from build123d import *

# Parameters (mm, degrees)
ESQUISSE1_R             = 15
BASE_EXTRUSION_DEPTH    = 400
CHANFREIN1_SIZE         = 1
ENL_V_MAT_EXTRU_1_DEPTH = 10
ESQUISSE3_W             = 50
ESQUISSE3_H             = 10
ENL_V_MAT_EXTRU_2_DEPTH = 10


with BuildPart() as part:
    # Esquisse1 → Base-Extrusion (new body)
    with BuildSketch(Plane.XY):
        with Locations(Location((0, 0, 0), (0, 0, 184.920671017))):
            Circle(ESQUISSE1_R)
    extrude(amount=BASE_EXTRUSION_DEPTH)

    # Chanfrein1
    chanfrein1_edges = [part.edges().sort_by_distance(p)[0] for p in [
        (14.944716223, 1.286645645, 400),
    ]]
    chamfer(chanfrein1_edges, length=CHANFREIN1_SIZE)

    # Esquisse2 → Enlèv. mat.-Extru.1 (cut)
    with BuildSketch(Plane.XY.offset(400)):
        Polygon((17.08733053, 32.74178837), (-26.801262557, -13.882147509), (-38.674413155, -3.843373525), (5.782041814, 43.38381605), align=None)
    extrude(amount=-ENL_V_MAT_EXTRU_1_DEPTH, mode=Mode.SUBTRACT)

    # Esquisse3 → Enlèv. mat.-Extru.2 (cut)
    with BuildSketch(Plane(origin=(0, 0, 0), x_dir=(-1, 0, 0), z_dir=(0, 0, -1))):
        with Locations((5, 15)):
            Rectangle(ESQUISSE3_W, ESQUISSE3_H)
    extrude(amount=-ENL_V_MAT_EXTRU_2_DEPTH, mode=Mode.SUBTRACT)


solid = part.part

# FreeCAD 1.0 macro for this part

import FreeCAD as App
import Part
import Sketcher

V = App.Vector
Q = App.Units.Quantity


def edges_at(feature, points):
    """Names of the edges that pass closest to the given points."""
    edges = feature.Shape.Edges
    near = lambda p: min(range(len(edges)), key=lambda i: edges[i].distToShape(Part.Vertex(*p))[0])
    return sorted({f"Edge{near(p) + 1}" for p in points})

doc = App.newDocument("Part")
body = doc.addObject("PartDesign::Body", "Body")

sketch1 = doc.addObject("Sketcher::SketchObject", "Sketch")
body.addObject(sketch1)
sketch1.AttachmentSupport = (doc.XY_Plane, [""])
sketch1.MapMode = "FlatFace"
sketch1.addGeometry(Part.Circle(V(0, 0, 0), V(0, 0, 1), 15), False)
sketch1.addConstraint([
    Sketcher.Constraint("Coincident", 0, 3, -1, 1),
    Sketcher.Constraint("Diameter", 0, Q("30 mm")),
])
pad1 = doc.addObject("PartDesign::Pad", "Pad")
body.addObject(pad1)
pad1.Profile = sketch1
pad1.Length = 400
doc.recompute()

chamfer = doc.addObject("PartDesign::Chamfer", "Chamfer")
body.addObject(chamfer)
chamfer.Base = (pad1, edges_at(pad1, [(14.945, 1.287, 400)]))
chamfer.Size = 1

sketch2 = doc.addObject("Sketcher::SketchObject", "Sketch001")
body.addObject(sketch2)
sketch2.AttachmentSupport = (doc.XY_Plane, [""])
sketch2.MapMode = "FlatFace"
sketch2.AttachmentOffset = App.Placement(V(0, 0, 400), App.Rotation())
sketch2.addGeometry([
    Part.LineSegment(V(-27, -14, 0), V(17, 33, 0)),
    Part.LineSegment(V(17, 33, 0), V(6, 43, 0)),
    Part.LineSegment(V(6, 43, 0), V(-39, -4, 0)),
    Part.LineSegment(V(-39, -4, 0), V(-27, -14, 0)),
], False)
sketch2.addConstraint([
    Sketcher.Constraint("Coincident", 0, 2, 1, 1),
    Sketcher.Constraint("Coincident", 1, 2, 2, 1),
    Sketcher.Constraint("Coincident", 2, 2, 3, 1),
    Sketcher.Constraint("Coincident", 3, 2, 0, 1),
    Sketcher.Constraint("Perpendicular", 0, 1),
    Sketcher.Constraint("Perpendicular", 1, 2),
    Sketcher.Constraint("Distance", 1, Q("15.526181 mm")),
    Sketcher.Constraint("Distance", 3, Q("15.54827 mm")),
    Sketcher.Constraint("DistanceX", -1, 1, 0, 2, Q("17.087331 mm")),
    Sketcher.Constraint("DistanceY", -1, 1, 0, 2, Q("32.741788 mm")),
    Sketcher.Constraint("DistanceX", -1, 1, 1, 2, Q("5.782042 mm")),
    Sketcher.Constraint("DistanceY", 2, 2, 1, 2, Q("47.22719 mm")),
])
pocket1 = doc.addObject("PartDesign::Pocket", "Pocket")
body.addObject(pocket1)
pocket1.Profile = sketch2
pocket1.Length = 10

sketch3 = doc.addObject("Sketcher::SketchObject", "Sketch002")
body.addObject(sketch3)
sketch3.AttachmentSupport = (doc.XY_Plane, [""])
sketch3.MapMode = "FlatFace"
sketch3.addGeometry([
    Part.LineSegment(V(20, 20, 0), V(20, 10, 0)),
    Part.LineSegment(V(20, 10, 0), V(-30, 10, 0)),
    Part.LineSegment(V(-30, 10, 0), V(-30, 20, 0)),
    Part.LineSegment(V(-30, 20, 0), V(20, 20, 0)),
], False)
sketch3.addConstraint([
    Sketcher.Constraint("Coincident", 0, 2, 1, 1),
    Sketcher.Constraint("Coincident", 1, 2, 2, 1),
    Sketcher.Constraint("Coincident", 2, 2, 3, 1),
    Sketcher.Constraint("Coincident", 3, 2, 0, 1),
    Sketcher.Constraint("Vertical", 0),
    Sketcher.Constraint("Horizontal", 1),
    Sketcher.Constraint("Vertical", 2),
    Sketcher.Constraint("Horizontal", 3),
    Sketcher.Constraint("DistanceX", 1, 2, 1, 1, Q("50 mm")),
    Sketcher.Constraint("DistanceY", 0, 2, 0, 1, Q("10 mm")),
    Sketcher.Constraint("DistanceX", -1, 1, 0, 2, Q("20 mm")),
    Sketcher.Constraint("DistanceY", -1, 1, 0, 2, Q("10 mm")),
])
pocket2 = doc.addObject("PartDesign::Pocket", "Pocket001")
body.addObject(pocket2)
pocket2.Profile = sketch3
pocket2.Length = 10
pocket2.Reversed = True

doc.recompute()
